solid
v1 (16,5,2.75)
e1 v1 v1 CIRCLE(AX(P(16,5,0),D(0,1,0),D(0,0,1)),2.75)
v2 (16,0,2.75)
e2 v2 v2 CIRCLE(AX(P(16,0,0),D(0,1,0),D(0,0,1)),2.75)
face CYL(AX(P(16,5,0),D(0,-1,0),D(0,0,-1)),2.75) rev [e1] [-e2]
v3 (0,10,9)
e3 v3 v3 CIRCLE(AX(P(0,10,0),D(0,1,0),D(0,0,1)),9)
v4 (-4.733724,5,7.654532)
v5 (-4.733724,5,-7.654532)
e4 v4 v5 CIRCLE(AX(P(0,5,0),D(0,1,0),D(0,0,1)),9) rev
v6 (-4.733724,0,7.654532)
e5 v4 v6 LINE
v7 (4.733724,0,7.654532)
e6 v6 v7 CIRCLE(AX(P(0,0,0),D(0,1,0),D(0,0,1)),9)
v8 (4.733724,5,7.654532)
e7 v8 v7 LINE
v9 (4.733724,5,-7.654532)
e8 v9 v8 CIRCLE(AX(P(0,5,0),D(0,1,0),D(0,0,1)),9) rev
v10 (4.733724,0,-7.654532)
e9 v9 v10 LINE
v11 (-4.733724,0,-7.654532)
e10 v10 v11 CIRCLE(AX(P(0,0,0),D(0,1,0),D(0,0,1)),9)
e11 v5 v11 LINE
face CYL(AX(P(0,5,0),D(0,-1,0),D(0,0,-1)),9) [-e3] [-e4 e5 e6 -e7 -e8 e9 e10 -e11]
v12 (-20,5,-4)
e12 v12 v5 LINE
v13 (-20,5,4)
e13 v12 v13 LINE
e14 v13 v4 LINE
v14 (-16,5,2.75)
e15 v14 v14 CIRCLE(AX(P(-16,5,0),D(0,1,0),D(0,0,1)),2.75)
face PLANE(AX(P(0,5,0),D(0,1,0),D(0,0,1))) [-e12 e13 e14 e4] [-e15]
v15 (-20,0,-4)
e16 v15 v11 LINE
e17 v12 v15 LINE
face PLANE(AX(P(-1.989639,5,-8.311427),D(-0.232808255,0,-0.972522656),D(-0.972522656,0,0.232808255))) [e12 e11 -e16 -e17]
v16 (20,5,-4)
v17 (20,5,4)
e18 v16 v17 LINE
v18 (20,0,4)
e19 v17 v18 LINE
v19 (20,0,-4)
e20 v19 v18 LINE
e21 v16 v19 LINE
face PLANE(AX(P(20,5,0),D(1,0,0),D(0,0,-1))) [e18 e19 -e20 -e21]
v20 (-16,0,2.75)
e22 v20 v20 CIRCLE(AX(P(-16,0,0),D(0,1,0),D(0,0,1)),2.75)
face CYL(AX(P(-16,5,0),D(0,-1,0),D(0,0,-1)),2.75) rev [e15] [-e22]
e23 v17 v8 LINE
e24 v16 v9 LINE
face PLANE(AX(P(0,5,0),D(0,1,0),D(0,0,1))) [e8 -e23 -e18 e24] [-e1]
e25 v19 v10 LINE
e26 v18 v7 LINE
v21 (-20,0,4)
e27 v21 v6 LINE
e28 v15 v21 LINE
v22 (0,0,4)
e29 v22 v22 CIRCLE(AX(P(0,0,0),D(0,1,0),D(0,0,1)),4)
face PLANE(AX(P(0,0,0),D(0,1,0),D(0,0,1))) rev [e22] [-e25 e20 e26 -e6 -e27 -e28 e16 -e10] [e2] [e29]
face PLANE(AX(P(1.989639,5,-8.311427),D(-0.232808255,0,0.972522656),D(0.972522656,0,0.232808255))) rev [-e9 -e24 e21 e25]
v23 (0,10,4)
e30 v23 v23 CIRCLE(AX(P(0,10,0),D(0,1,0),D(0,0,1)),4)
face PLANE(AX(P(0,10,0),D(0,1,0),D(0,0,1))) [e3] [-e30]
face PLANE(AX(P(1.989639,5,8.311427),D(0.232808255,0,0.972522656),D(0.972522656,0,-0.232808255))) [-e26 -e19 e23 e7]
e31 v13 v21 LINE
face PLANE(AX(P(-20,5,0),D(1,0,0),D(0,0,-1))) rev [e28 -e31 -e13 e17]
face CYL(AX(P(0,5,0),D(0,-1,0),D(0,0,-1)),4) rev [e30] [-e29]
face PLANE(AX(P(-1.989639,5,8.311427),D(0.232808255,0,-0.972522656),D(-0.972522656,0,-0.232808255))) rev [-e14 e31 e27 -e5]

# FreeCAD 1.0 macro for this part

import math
import FreeCAD as App
import Part
import Sketcher

V = App.Vector
Q = App.Units.Quantity

doc = App.newDocument("Part")
params = doc.addObject("Spreadsheet::Sheet", "Params")
for row, (alias, value) in enumerate([
    ("sketch1_diameter", "8 mm"),
    ("sketch1_radius", "9 mm"),
    ("sketch1_diameter2", "5.5 mm"),
    ("sketch1_height", "8 mm"),
    ("pad1_length", "5 mm"),
    ("sketch2_diameter", "18 mm"),
    ("sketch2_diameter2", "8 mm"),
    ("pad2_length", "10 mm"),
], start=1):
    params.set(f"A{row}", alias)
    params.set(f"B{row}", "=" + value)
    params.setAlias(f"B{row}", alias)

body = doc.addObject("PartDesign::Body", "Body")

# Sketch on XZ plane
sketch1 = doc.addObject("Sketcher::SketchObject", "Sketch")
body.addObject(sketch1)
sketch1.AttachmentSupport = (doc.XZ_Plane, [""])
sketch1.MapMode = "FlatFace"
sketch1.addGeometry(Part.ArcOfCircle(Part.Circle(V(0, 0, 0), V(0, 0, 1), 9), math.radians(-122), math.radians(-58)), False)
sketch1.addGeometry(Part.LineSegment(V(-4.7, -7.7, 0), V(-20, -4, 0)), False)
sketch1.addGeometry(Part.LineSegment(V(-20, -4, 0), V(-20, 4, 0)), False)
sketch1.addGeometry(Part.LineSegment(V(-20, 4, 0), V(-4.7, 7.7, 0)), False)
sketch1.addGeometry(Part.ArcOfCircle(Part.Circle(V(0, 0, 0), V(0, 0, 1), 9), math.radians(58), math.radians(122)), False)
sketch1.addGeometry(Part.LineSegment(V(4.7, 7.7, 0), V(20, 4, 0)), False)
sketch1.addGeometry(Part.LineSegment(V(20, 4, 0), V(20, -4, 0)), False)
sketch1.addGeometry(Part.LineSegment(V(20, -4, 0), V(4.7, -7.7, 0)), False)
sketch1.addGeometry(Part.Circle(V(0, 0, 0), V(0, 0, 1), 4), False)
sketch1.addGeometry(Part.Circle(V(16, 0, 0), V(0, 0, 1), 2.8), False)
sketch1.addGeometry(Part.Circle(V(-16, 0, 0), V(0, 0, 1), 2.8), False)
sketch1.addConstraint(Sketcher.Constraint("Coincident", 0, 1, 1, 1))
sketch1.addConstraint(Sketcher.Constraint("Coincident", 1, 2, 2, 1))
sketch1.addConstraint(Sketcher.Constraint("Coincident", 2, 2, 3, 1))
sketch1.addConstraint(Sketcher.Constraint("Coincident", 3, 2, 4, 2))
sketch1.addConstraint(Sketcher.Constraint("Coincident", 4, 1, 5, 1))
sketch1.addConstraint(Sketcher.Constraint("Coincident", 5, 2, 6, 1))
sketch1.addConstraint(Sketcher.Constraint("Coincident", 6, 2, 7, 1))
sketch1.addConstraint(Sketcher.Constraint("Coincident", 7, 2, 0, 2))
sketch1.addConstraint(Sketcher.Constraint("Vertical", 2))
sketch1.addConstraint(Sketcher.Constraint("Vertical", 6))
sketch1.addConstraint(Sketcher.Constraint("Coincident", 0, 3, -1, 1))
sketch1.addConstraint(Sketcher.Constraint("Coincident", 4, 3, -1, 1))
sketch1.addConstraint(Sketcher.Constraint("Coincident", 8, 3, -1, 1))
sketch1.addConstraint(Sketcher.Constraint("Equal", 0, 4))
sketch1.addConstraint(Sketcher.Constraint("Equal", 9, 10))
sketch1.addConstraint(Sketcher.Constraint("Symmetric", 9, 3, 10, 3, -1, 1))
sketch1.addConstraint(Sketcher.Constraint("Symmetric", 1, 2, 5, 2, -1, 1))
sketch1.addConstraint(Sketcher.Constraint("PointOnObject", 9, 3, -1))
sketch1.addConstraint(Sketcher.Constraint("Parallel", 1, 5))
sketch1.addConstraint(Sketcher.Constraint("Parallel", 3, 7))
sketch1.addConstraint(Sketcher.Constraint("Horizontal", 3, 2, 4, 1))
sketch1.addConstraint(Sketcher.Constraint("Horizontal", 2, 2, 5, 2))
sketch1.addConstraint(Sketcher.Constraint("Horizontal", 1, 2, 6, 2))
sketch1.addConstraint(Sketcher.Constraint("Diameter", 8, Q("8 mm")))
sketch1.addConstraint(Sketcher.Constraint("Radius", 0, Q("9 mm")))
sketch1.addConstraint(Sketcher.Constraint("Diameter", 9, Q("5.5 mm")))
sketch1.addConstraint(Sketcher.Constraint("DistanceY", 2, 1, 2, 2, Q("8 mm")))
sketch1.addConstraint(Sketcher.Constraint("DistanceX", -1, 1, 9, 3, Q("16 mm")))
sketch1.addConstraint(Sketcher.Constraint("DistanceX", 1, 2, -1, 1, Q("20 mm")))
sketch1.addConstraint(Sketcher.Constraint("DistanceY", 0, 1, -1, 1, Q("7.654532 mm")))
sketch1.setExpression("Constraints[23]", "Params.sketch1_diameter")
sketch1.setExpression("Constraints[24]", "Params.sketch1_radius")
sketch1.setExpression("Constraints[25]", "Params.sketch1_diameter2")
sketch1.setExpression("Constraints[26]", "Params.sketch1_height")
pad1 = doc.addObject("PartDesign::Pad", "Pad")
body.addObject(pad1)
pad1.Profile = sketch1
pad1.setExpression("Length", "Params.pad1_length")
pad1.Reversed = True

# Sketch on XZ plane
sketch2 = doc.addObject("Sketcher::SketchObject", "Sketch001")
body.addObject(sketch2)
sketch2.AttachmentSupport = (doc.XZ_Plane, [""])
sketch2.MapMode = "FlatFace"
sketch2.addGeometry(Part.Circle(V(0, 0, 0), V(0, 0, 1), 9), False)
sketch2.addGeometry(Part.Circle(V(0, 0, 0), V(0, 0, 1), 4), False)
sketch2.addConstraint(Sketcher.Constraint("Coincident", 0, 3, -1, 1))
sketch2.addConstraint(Sketcher.Constraint("Coincident", 1, 3, -1, 1))
sketch2.addConstraint(Sketcher.Constraint("Diameter", 0, Q("18 mm")))
sketch2.addConstraint(Sketcher.Constraint("Diameter", 1, Q("8 mm")))
sketch2.setExpression("Constraints[2]", "Params.sketch2_diameter")
sketch2.setExpression("Constraints[3]", "Params.sketch2_diameter2")
pad2 = doc.addObject("PartDesign::Pad", "Pad001")
body.addObject(pad2)
pad2.Profile = sketch2
pad2.setExpression("Length", "Params.pad2_length")
pad2.Reversed = True

doc.recompute()
